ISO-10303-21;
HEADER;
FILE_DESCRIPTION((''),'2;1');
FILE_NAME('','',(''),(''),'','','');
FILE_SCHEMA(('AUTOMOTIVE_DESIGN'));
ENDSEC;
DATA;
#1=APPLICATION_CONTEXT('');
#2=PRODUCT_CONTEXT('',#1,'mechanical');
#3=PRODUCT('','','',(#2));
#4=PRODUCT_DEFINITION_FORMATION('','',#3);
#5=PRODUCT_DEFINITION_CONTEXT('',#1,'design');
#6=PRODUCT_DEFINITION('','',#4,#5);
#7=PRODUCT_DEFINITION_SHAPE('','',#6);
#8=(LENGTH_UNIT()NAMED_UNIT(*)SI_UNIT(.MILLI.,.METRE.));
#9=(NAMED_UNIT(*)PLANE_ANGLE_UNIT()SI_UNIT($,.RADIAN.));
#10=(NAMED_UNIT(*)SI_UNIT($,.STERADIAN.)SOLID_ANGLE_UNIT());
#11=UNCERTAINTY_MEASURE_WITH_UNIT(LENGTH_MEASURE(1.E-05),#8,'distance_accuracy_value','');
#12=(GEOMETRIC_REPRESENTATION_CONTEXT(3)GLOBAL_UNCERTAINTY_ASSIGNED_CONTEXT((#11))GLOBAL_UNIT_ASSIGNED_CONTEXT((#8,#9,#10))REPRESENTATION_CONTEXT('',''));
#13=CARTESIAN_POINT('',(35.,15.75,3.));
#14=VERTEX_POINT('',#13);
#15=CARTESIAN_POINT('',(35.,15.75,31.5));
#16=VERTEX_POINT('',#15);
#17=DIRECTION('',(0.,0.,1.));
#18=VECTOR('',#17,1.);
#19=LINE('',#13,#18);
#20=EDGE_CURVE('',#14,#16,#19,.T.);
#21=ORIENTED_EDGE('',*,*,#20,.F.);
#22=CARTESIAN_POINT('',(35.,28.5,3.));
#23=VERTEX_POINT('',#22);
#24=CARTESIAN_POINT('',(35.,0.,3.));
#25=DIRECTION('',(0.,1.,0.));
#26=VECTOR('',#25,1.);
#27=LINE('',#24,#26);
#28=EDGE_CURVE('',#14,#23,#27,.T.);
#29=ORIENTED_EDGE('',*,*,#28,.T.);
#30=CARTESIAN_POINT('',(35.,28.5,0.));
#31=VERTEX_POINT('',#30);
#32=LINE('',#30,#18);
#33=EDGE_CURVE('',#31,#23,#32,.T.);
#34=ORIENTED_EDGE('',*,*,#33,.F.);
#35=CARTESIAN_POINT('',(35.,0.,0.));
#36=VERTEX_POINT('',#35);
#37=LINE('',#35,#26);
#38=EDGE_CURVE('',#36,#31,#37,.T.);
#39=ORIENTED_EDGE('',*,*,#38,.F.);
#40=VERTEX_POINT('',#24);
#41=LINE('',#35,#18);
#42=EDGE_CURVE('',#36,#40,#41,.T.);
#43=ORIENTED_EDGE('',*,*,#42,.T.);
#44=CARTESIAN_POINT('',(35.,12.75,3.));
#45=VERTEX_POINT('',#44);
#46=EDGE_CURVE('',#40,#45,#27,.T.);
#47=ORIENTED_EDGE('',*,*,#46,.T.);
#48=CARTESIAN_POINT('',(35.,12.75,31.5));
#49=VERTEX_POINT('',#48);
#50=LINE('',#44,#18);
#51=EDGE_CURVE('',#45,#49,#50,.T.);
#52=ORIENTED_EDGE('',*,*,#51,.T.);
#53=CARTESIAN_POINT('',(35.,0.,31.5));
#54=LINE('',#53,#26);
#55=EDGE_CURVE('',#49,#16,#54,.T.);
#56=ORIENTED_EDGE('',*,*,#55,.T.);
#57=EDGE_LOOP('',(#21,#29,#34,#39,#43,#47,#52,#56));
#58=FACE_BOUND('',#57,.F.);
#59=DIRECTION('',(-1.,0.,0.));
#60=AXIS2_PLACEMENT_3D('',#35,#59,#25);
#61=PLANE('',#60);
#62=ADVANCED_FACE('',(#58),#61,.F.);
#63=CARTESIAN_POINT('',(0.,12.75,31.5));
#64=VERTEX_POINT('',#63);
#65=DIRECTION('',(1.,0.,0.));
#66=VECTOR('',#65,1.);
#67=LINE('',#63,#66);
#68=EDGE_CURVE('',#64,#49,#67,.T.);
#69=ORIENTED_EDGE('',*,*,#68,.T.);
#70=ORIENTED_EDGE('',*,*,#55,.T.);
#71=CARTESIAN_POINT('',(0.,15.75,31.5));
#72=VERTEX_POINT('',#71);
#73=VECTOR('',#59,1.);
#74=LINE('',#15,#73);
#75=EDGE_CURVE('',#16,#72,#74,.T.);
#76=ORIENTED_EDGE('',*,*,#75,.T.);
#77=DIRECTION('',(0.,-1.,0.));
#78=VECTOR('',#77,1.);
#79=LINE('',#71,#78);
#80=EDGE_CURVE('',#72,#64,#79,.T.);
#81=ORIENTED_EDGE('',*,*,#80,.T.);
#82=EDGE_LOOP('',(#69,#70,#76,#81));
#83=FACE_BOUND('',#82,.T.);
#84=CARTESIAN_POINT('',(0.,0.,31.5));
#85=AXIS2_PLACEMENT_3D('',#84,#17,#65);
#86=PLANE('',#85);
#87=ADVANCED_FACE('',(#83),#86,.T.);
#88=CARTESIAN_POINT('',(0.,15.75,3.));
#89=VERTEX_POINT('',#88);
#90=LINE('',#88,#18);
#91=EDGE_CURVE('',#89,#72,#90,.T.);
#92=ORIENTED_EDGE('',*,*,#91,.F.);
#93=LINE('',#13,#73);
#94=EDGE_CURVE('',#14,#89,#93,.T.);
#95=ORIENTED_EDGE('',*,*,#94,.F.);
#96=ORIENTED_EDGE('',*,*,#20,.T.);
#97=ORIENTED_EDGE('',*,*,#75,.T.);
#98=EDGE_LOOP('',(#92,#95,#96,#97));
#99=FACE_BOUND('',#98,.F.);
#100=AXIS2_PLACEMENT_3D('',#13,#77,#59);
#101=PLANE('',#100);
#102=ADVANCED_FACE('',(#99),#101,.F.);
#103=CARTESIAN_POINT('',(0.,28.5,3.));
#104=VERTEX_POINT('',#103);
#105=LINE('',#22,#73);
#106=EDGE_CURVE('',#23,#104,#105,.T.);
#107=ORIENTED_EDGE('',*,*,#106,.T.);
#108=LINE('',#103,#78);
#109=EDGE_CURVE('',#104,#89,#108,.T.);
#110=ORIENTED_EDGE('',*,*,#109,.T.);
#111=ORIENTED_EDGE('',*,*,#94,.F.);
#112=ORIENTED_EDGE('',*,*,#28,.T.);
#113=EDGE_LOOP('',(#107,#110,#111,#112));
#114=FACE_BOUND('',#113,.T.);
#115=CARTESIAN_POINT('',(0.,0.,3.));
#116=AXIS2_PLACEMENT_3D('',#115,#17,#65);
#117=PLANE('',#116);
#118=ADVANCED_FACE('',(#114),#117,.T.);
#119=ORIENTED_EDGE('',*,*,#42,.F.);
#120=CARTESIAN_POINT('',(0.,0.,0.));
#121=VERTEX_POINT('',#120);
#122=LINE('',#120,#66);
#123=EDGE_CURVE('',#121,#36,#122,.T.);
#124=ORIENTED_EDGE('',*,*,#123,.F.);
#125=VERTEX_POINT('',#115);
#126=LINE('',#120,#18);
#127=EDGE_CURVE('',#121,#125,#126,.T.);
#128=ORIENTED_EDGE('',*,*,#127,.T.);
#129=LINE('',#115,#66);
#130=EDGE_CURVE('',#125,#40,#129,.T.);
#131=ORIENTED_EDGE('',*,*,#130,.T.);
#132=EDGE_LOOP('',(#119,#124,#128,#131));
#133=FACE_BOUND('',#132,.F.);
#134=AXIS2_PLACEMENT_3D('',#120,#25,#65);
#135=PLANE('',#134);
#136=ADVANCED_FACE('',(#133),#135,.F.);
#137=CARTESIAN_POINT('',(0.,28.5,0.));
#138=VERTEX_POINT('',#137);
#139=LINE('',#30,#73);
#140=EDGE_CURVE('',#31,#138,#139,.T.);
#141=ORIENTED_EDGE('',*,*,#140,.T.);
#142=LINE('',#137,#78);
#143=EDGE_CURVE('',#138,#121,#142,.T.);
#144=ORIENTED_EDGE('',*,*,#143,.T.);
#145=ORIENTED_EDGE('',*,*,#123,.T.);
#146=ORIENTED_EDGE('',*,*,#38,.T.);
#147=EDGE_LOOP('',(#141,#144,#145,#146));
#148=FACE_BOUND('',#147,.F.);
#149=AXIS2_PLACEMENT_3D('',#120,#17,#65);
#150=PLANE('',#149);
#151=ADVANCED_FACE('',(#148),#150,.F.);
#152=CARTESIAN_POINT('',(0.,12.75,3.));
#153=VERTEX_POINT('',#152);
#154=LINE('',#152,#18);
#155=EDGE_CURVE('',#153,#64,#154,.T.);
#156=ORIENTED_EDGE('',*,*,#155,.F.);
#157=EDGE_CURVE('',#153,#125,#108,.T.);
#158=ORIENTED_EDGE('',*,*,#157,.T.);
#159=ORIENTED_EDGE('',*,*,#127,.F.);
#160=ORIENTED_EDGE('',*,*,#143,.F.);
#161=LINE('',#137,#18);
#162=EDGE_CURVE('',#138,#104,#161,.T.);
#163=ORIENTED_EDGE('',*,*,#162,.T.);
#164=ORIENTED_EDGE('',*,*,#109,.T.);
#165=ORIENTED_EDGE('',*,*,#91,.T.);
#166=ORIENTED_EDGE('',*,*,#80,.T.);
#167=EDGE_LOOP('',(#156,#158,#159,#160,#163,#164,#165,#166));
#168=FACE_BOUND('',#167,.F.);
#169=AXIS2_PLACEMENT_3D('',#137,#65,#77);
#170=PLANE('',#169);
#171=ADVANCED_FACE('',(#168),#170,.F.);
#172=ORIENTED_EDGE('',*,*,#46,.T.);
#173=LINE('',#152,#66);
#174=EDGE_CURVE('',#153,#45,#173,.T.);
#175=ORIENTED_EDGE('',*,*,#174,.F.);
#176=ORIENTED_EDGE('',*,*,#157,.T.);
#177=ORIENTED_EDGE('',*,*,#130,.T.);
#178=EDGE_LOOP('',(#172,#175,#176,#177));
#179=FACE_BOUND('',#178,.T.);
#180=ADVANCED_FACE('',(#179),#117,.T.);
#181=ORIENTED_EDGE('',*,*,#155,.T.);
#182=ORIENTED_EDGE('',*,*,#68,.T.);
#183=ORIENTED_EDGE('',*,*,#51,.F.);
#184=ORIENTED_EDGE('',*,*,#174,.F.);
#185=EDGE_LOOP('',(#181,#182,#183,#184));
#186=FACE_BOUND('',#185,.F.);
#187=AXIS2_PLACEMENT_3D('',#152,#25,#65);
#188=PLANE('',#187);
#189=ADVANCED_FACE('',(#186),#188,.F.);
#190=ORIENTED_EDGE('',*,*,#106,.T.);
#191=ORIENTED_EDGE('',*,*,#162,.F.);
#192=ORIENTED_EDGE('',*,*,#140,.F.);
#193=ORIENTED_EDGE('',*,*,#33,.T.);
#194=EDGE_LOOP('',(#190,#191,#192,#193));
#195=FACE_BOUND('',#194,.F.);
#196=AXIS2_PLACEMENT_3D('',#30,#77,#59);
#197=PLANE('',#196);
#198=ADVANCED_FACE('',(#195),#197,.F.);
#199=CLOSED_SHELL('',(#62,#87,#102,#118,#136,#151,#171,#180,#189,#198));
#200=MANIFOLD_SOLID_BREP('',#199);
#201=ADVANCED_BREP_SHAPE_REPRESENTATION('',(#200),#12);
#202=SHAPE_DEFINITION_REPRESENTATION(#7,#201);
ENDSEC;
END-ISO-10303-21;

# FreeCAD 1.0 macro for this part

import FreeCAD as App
import Part
import Sketcher
from FreeCAD import Vector

doc = App.newDocument("Part")
body = doc.addObject("PartDesign::Body", "Body")

sketch1 = body.newObject("Sketcher::SketchObject", "Sketch")
sketch1.AttachmentSupport = (doc.getObject("XY_Plane"), [""])
sketch1.MapMode = "FlatFace"
sketch1.addGeometry(Part.LineSegment(Vector(0, 28, 0), Vector(0, 0, 0)), False)
sketch1.addGeometry(Part.LineSegment(Vector(0, 0, 0), Vector(35, 0, 0)), False)
sketch1.addGeometry(Part.LineSegment(Vector(35, 0, 0), Vector(35, 28, 0)), False)
sketch1.addGeometry(Part.LineSegment(Vector(35, 28, 0), Vector(0, 28, 0)), False)
sketch1.addConstraint(Sketcher.Constraint("Coincident", 0, 2, 1, 1))
sketch1.addConstraint(Sketcher.Constraint("Coincident", 1, 2, 2, 1))
sketch1.addConstraint(Sketcher.Constraint("Coincident", 2, 2, 3, 1))
sketch1.addConstraint(Sketcher.Constraint("Coincident", 3, 2, 0, 1))
sketch1.addConstraint(Sketcher.Constraint("Vertical", 0))
sketch1.addConstraint(Sketcher.Constraint("Horizontal", 1))
sketch1.addConstraint(Sketcher.Constraint("Vertical", 2))
sketch1.addConstraint(Sketcher.Constraint("Horizontal", 3))
sketch1.addConstraint(Sketcher.Constraint("Coincident", 0, 2, -1, 1))
sketch1.addConstraint(Sketcher.Constraint("DistanceX", 1, 1, 1, 2, 35.0))
sketch1.addConstraint(Sketcher.Constraint("DistanceY", 0, 2, 0, 1, 28.5))
pad1 = body.newObject("PartDesign::Pad", "Pad")
pad1.Profile = sketch1
pad1.Length = 3

sketch2 = body.newObject("Sketcher::SketchObject", "Sketch001")
sketch2.AttachmentSupport = (doc.getObject("XY_Plane"), [""])
sketch2.MapMode = "FlatFace"
sketch2.AttachmentOffset = App.Placement(Vector(0, 0, 3), App.Rotation())
sketch2.addGeometry(Part.LineSegment(Vector(0, 12.8, 0), Vector(35, 12.8, 0)), False)
sketch2.addGeometry(Part.LineSegment(Vector(35, 12.8, 0), Vector(35, 15.8, 0)), False)
sketch2.addGeometry(Part.LineSegment(Vector(35, 15.8, 0), Vector(0, 15.8, 0)), False)
sketch2.addGeometry(Part.LineSegment(Vector(0, 15.8, 0), Vector(0, 12.8, 0)), False)
sketch2.addConstraint(Sketcher.Constraint("Coincident", 0, 2, 1, 1))
sketch2.addConstraint(Sketcher.Constraint("Coincident", 1, 2, 2, 1))
sketch2.addConstraint(Sketcher.Constraint("Coincident", 2, 2, 3, 1))
sketch2.addConstraint(Sketcher.Constraint("Coincident", 3, 2, 0, 1))
sketch2.addConstraint(Sketcher.Constraint("Horizontal", 0))
sketch2.addConstraint(Sketcher.Constraint("Vertical", 1))
sketch2.addConstraint(Sketcher.Constraint("Horizontal", 2))
sketch2.addConstraint(Sketcher.Constraint("Vertical", 3))
sketch2.addConstraint(Sketcher.Constraint("PointOnObject", 2, 2, -2))
sketch2.addConstraint(Sketcher.Constraint("DistanceY", 1, 1, 1, 2, 3.0))
sketch2.addConstraint(Sketcher.Constraint("DistanceX", 0, 1, 0, 2, 35.0))
sketch2.addConstraint(Sketcher.Constraint("DistanceY", -1, 1, 0, 2, 12.75))
pad2 = body.newObject("PartDesign::Pad", "Pad001")
pad2.Profile = sketch2
pad2.Length = 28.5

doc.recompute()
